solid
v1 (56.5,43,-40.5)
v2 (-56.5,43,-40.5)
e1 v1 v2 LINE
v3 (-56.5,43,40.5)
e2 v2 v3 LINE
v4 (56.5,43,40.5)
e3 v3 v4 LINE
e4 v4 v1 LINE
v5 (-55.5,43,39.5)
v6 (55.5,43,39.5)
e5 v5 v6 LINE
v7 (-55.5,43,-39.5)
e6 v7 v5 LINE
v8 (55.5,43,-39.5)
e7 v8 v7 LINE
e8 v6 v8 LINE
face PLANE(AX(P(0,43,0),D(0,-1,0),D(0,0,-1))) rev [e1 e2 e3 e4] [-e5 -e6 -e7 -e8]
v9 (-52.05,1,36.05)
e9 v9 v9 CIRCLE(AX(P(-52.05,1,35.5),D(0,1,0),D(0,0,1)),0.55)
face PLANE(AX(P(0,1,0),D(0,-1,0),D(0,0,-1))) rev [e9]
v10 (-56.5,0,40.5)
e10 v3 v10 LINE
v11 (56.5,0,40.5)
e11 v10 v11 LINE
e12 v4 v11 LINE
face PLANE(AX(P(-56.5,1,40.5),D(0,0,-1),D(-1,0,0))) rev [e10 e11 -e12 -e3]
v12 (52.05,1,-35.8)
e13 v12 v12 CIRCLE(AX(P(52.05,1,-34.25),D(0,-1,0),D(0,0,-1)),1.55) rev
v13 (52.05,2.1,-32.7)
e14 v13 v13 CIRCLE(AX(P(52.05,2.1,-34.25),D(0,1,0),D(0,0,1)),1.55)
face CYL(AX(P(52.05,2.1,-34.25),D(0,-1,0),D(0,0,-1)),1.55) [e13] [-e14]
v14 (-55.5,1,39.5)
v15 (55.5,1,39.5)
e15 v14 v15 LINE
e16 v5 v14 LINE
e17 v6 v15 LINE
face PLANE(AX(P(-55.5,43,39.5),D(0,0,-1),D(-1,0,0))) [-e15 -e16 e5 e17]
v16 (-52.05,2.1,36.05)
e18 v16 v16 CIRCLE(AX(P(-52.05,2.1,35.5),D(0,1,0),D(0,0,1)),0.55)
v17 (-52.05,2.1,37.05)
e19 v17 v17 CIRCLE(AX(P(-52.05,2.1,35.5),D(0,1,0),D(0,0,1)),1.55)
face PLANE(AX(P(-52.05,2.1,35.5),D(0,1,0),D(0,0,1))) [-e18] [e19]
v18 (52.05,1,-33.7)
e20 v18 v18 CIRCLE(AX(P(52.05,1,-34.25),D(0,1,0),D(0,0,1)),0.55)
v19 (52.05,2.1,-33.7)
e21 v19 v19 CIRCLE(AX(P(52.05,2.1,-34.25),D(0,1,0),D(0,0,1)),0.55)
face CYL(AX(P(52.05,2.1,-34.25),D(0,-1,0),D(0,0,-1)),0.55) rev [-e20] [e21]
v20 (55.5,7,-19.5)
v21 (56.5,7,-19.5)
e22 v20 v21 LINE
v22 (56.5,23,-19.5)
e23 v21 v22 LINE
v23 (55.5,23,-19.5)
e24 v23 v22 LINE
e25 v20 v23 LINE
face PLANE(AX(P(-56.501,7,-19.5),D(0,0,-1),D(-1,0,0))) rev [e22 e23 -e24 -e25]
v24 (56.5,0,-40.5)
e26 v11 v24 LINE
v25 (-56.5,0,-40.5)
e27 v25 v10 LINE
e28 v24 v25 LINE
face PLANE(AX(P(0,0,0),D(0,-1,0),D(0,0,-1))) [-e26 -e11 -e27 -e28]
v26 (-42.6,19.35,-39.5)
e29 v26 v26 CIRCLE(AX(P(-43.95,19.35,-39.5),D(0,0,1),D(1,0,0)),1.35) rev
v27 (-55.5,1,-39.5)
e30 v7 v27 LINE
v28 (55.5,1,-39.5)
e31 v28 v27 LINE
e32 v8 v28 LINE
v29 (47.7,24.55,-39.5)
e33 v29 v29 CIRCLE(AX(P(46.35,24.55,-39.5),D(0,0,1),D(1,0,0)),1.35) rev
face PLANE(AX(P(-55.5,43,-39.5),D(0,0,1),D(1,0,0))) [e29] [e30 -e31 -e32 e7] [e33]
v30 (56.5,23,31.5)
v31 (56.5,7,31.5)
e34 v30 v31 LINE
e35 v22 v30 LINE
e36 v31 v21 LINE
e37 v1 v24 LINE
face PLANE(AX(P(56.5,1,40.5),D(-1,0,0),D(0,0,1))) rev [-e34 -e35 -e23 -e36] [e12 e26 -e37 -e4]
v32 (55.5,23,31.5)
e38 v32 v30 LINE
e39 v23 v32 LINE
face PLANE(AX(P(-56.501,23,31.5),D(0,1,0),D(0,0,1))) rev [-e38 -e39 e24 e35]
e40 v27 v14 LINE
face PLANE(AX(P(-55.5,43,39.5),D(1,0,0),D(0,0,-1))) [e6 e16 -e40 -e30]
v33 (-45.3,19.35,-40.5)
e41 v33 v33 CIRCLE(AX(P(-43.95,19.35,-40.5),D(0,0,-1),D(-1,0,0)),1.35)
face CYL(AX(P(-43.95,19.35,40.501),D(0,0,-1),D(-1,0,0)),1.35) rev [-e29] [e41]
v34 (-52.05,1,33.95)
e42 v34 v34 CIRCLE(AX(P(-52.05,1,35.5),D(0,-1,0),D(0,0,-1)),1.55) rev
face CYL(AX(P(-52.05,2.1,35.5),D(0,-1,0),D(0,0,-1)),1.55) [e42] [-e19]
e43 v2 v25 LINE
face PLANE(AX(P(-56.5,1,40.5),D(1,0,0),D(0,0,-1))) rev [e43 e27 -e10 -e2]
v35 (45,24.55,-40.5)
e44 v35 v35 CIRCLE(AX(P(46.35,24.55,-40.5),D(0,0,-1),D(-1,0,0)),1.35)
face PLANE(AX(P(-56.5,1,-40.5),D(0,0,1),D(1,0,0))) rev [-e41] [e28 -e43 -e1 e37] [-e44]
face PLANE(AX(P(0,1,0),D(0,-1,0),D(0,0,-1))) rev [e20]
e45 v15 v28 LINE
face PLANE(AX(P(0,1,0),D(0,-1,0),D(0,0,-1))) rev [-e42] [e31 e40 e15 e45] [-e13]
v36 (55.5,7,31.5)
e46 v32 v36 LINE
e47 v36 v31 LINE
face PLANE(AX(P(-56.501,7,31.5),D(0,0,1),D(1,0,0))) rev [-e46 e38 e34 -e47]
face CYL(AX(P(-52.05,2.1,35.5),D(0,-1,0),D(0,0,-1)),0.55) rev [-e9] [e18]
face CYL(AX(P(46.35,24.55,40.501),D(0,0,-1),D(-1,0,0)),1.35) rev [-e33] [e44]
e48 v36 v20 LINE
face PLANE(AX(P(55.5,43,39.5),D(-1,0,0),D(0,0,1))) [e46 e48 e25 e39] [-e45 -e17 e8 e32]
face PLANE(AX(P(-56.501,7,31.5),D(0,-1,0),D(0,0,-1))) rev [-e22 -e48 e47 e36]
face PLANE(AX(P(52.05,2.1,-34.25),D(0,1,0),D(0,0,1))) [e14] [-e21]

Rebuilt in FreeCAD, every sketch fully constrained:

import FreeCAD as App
import Part
import Sketcher
from FreeCAD import Vector

doc = App.newDocument("Part")
body = doc.addObject("PartDesign::Body", "Body")

# Sketch on XZ plane
sketch1 = body.newObject("Sketcher::SketchObject", "Sketch")
sketch1.AttachmentSupport = (doc.getObject("XZ_Plane"), [""])
sketch1.MapMode = "FlatFace"
sketch1.addGeometry([
    Part.LineSegment(Vector(-56, -40, 0), Vector(-56, 40, 0)),
    Part.LineSegment(Vector(-56, 40, 0), Vector(56, 40, 0)),
    Part.LineSegment(Vector(56, 40, 0), Vector(56, -40, 0)),
    Part.LineSegment(Vector(56, -40, 0), Vector(-56, -40, 0)),
], False)
sketch1.addConstraint([
    Sketcher.Constraint("Coincident", 0, 2, 1, 1),
    Sketcher.Constraint("Coincident", 1, 2, 2, 1),
    Sketcher.Constraint("Coincident", 2, 2, 3, 1),
    Sketcher.Constraint("Coincident", 3, 2, 0, 1),
    Sketcher.Constraint("Vertical", 0),
    Sketcher.Constraint("Horizontal", 1),
    Sketcher.Constraint("Vertical", 2),
    Sketcher.Constraint("Horizontal", 3),
    Sketcher.Constraint("Symmetric", 0, 2, 2, 2, -1, 1),
    Sketcher.Constraint("DistanceX", 1, 1, 1, 2, 113.0),
    Sketcher.Constraint("DistanceY", 0, 1, 0, 2, 81.0),
])
pad1 = body.newObject("PartDesign::Pad", "Pad")
pad1.Profile = sketch1
pad1.Length = 1
pad1.Reversed = True

# Sketch on XZ plane
sketch2 = body.newObject("Sketcher::SketchObject", "Sketch001")
sketch2.AttachmentSupport = (doc.getObject("XZ_Plane"), [""])
sketch2.MapMode = "FlatFace"
sketch2.AttachmentOffset = App.Placement(Vector(0, 0, -1), App.Rotation())
sketch2.addGeometry([
    Part.LineSegment(Vector(-56, -40, 0), Vector(-56, 40, 0)),  # 0
    Part.LineSegment(Vector(-56, 40, 0), Vector(56, 40, 0)),  # 1
    Part.LineSegment(Vector(56, 40, 0), Vector(56, -40, 0)),  # 2
    Part.LineSegment(Vector(56, -40, 0), Vector(-56, -40, 0)),  # 3
    Part.LineSegment(Vector(56, 40, 0), Vector(-56, 40, 0)),  # 4
    Part.LineSegment(Vector(-56, 40, 0), Vector(-56, -40, 0)),  # 5
    Part.LineSegment(Vector(-56, -40, 0), Vector(56, -40, 0)),  # 6
    Part.LineSegment(Vector(56, -40, 0), Vector(56, 40, 0)),  # 7
], False)
sketch2.addConstraint([
    Sketcher.Constraint("Coincident", 0, 2, 1, 1),
    Sketcher.Constraint("Coincident", 1, 2, 2, 1),
    Sketcher.Constraint("Coincident", 2, 2, 3, 1),
    Sketcher.Constraint("Coincident", 3, 2, 0, 1),
    Sketcher.Constraint("Coincident", 4, 2, 5, 1),
    Sketcher.Constraint("Coincident", 5, 2, 6, 1),
    Sketcher.Constraint("Coincident", 6, 2, 7, 1),
    Sketcher.Constraint("Coincident", 7, 2, 4, 1),
    Sketcher.Constraint("Vertical", 0),
    Sketcher.Constraint("Horizontal", 1),
    Sketcher.Constraint("Vertical", 2),
    Sketcher.Constraint("Horizontal", 3),
    Sketcher.Constraint("Horizontal", 4),
    Sketcher.Constraint("Vertical", 5),
    Sketcher.Constraint("Horizontal", 6),
    Sketcher.Constraint("Vertical", 7),
    Sketcher.Constraint("Symmetric", 0, 2, 2, 2, -1, 1),
    Sketcher.Constraint("Symmetric", 4, 2, 6, 2, -1, 1),
    Sketcher.Constraint("DistanceX", 1, 1, 1, 2, 113.0),
    Sketcher.Constraint("DistanceX", 4, 2, 4, 1, 111.0),
    Sketcher.Constraint("DistanceY", 0, 1, 0, 2, 81.0),
    Sketcher.Constraint("DistanceY", 5, 2, 5, 1, 79.0),
])
pad2 = body.newObject("PartDesign::Pad", "Pad001")
pad2.Profile = sketch2
pad2.Length = 42
pad2.Reversed = True

# Sketch on YZ plane
sketch3 = body.newObject("Sketcher::SketchObject", "Sketch002")
sketch3.AttachmentSupport = (doc.getObject("YZ_Plane"), [""])
sketch3.MapMode = "FlatFace"
sketch3.AttachmentOffset = App.Placement(Vector(0, 0, 56.5), App.Rotation())
sketch3.addGeometry([
    Part.LineSegment(Vector(23, 32, 0), Vector(7, 32, 0)),
    Part.LineSegment(Vector(7, 32, 0), Vector(7, -20, 0)),
    Part.LineSegment(Vector(7, -20, 0), Vector(23, -20, 0)),
    Part.LineSegment(Vector(23, -20, 0), Vector(23, 32, 0)),
], False)
sketch3.addConstraint([
    Sketcher.Constraint("Coincident", 0, 2, 1, 1),
    Sketcher.Constraint("Coincident", 1, 2, 2, 1),
    Sketcher.Constraint("Coincident", 2, 2, 3, 1),
    Sketcher.Constraint("Coincident", 3, 2, 0, 1),
    Sketcher.Constraint("Horizontal", 0),
    Sketcher.Constraint("Vertical", 1),
    Sketcher.Constraint("Horizontal", 2),
    Sketcher.Constraint("Vertical", 3),
    Sketcher.Constraint("DistanceX", 0, 2, 0, 1, 16.0),
    Sketcher.Constraint("DistanceY", 1, 2, 1, 1, 51.0),
    Sketcher.Constraint("DistanceX", -1, 1, 0, 2, 7.0),
    Sketcher.Constraint("DistanceY", -1, 1, 0, 2, 31.5),
])
pocket1 = body.newObject("PartDesign::Pocket", "Pocket")
pocket1.Profile = sketch3
pocket1.Type = "UpToFirst"

# Sketch on XZ plane
sketch4 = body.newObject("Sketcher::SketchObject", "Sketch003")
sketch4.AttachmentSupport = (doc.getObject("XZ_Plane"), [""])
sketch4.MapMode = "FlatFace"
sketch4.AttachmentOffset = App.Placement(Vector(0, 0, -1), App.Rotation())
sketch4.addGeometry([
    Part.Circle(Vector(52, -34.2, 0), Vector(0, 0, 1), 1.6),
    Part.Circle(Vector(52, -34.2, 0), Vector(0, 0, 1), 0.6),
    Part.Circle(Vector(-52, 35.5, 0), Vector(0, 0, 1), 1.6),
    Part.Circle(Vector(-52, 35.5, 0), Vector(0, 0, 1), 0.6),
], False)
sketch4.addConstraint([
    Sketcher.Constraint("Coincident", 1, 3, 0, 3),
    Sketcher.Constraint("Coincident", 3, 3, 2, 3),
    Sketcher.Constraint("Equal", 0, 2),
    Sketcher.Constraint("Equal", 1, 3),
    Sketcher.Constraint("Diameter", 0, 3.1),
    Sketcher.Constraint("Diameter", 1, 1.1),
    Sketcher.Constraint("DistanceY", -1, 1, 2, 3, 35.5),
    Sketcher.Constraint("DistanceX", 2, 3, 0, 3, 104.1),
    Sketcher.Constraint("DistanceX", -1, 1, 0, 3, 52.05),
    Sketcher.Constraint("DistanceY", 0, 3, -1, 1, 34.25),
])
pad3 = body.newObject("PartDesign::Pad", "Pad002")
pad3.Profile = sketch4
pad3.Length = 1.1
pad3.Reversed = True

# Sketch on XY plane
sketch5 = body.newObject("Sketcher::SketchObject", "Sketch004")
sketch5.AttachmentSupport = (doc.getObject("XY_Plane"), [""])
sketch5.MapMode = "FlatFace"
sketch5.AttachmentOffset = App.Placement(Vector(0, 0, -40.5), App.Rotation())
sketch5.addGeometry(Part.Circle(Vector(46.4, 24.6, 0), Vector(0, 0, 1), 1.4), False)
sketch5.addConstraint([
    Sketcher.Constraint("Diameter", 0, 2.7),
    Sketcher.Constraint("DistanceX", -1, 1, 0, 3, 46.35),
    Sketcher.Constraint("DistanceY", -1, 1, 0, 3, 24.55),
])
pocket2 = body.newObject("PartDesign::Pocket", "Pocket001")
pocket2.Profile = sketch5
pocket2.Type = "UpToFirst"
pocket2.Reversed = True

# Sketch on XY plane
sketch6 = body.newObject("Sketcher::SketchObject", "Sketch005")
sketch6.AttachmentSupport = (doc.getObject("XY_Plane"), [""])
sketch6.MapMode = "FlatFace"
sketch6.AttachmentOffset = App.Placement(Vector(0, 0, -40.5), App.Rotation())
sketch6.addGeometry(Part.Circle(Vector(-44, 19.4, 0), Vector(0, 0, 1), 1.4), False)
sketch6.addConstraint([
    Sketcher.Constraint("Diameter", 0, 2.7),
    Sketcher.Constraint("DistanceX", 0, 3, -1, 1, 43.95),
    Sketcher.Constraint("DistanceY", -1, 1, 0, 3, 19.35),
])
pocket3 = body.newObject("PartDesign::Pocket", "Pocket002")
pocket3.Profile = sketch6
pocket3.Type = "UpToFirst"
pocket3.Reversed = True

doc.recompute()
